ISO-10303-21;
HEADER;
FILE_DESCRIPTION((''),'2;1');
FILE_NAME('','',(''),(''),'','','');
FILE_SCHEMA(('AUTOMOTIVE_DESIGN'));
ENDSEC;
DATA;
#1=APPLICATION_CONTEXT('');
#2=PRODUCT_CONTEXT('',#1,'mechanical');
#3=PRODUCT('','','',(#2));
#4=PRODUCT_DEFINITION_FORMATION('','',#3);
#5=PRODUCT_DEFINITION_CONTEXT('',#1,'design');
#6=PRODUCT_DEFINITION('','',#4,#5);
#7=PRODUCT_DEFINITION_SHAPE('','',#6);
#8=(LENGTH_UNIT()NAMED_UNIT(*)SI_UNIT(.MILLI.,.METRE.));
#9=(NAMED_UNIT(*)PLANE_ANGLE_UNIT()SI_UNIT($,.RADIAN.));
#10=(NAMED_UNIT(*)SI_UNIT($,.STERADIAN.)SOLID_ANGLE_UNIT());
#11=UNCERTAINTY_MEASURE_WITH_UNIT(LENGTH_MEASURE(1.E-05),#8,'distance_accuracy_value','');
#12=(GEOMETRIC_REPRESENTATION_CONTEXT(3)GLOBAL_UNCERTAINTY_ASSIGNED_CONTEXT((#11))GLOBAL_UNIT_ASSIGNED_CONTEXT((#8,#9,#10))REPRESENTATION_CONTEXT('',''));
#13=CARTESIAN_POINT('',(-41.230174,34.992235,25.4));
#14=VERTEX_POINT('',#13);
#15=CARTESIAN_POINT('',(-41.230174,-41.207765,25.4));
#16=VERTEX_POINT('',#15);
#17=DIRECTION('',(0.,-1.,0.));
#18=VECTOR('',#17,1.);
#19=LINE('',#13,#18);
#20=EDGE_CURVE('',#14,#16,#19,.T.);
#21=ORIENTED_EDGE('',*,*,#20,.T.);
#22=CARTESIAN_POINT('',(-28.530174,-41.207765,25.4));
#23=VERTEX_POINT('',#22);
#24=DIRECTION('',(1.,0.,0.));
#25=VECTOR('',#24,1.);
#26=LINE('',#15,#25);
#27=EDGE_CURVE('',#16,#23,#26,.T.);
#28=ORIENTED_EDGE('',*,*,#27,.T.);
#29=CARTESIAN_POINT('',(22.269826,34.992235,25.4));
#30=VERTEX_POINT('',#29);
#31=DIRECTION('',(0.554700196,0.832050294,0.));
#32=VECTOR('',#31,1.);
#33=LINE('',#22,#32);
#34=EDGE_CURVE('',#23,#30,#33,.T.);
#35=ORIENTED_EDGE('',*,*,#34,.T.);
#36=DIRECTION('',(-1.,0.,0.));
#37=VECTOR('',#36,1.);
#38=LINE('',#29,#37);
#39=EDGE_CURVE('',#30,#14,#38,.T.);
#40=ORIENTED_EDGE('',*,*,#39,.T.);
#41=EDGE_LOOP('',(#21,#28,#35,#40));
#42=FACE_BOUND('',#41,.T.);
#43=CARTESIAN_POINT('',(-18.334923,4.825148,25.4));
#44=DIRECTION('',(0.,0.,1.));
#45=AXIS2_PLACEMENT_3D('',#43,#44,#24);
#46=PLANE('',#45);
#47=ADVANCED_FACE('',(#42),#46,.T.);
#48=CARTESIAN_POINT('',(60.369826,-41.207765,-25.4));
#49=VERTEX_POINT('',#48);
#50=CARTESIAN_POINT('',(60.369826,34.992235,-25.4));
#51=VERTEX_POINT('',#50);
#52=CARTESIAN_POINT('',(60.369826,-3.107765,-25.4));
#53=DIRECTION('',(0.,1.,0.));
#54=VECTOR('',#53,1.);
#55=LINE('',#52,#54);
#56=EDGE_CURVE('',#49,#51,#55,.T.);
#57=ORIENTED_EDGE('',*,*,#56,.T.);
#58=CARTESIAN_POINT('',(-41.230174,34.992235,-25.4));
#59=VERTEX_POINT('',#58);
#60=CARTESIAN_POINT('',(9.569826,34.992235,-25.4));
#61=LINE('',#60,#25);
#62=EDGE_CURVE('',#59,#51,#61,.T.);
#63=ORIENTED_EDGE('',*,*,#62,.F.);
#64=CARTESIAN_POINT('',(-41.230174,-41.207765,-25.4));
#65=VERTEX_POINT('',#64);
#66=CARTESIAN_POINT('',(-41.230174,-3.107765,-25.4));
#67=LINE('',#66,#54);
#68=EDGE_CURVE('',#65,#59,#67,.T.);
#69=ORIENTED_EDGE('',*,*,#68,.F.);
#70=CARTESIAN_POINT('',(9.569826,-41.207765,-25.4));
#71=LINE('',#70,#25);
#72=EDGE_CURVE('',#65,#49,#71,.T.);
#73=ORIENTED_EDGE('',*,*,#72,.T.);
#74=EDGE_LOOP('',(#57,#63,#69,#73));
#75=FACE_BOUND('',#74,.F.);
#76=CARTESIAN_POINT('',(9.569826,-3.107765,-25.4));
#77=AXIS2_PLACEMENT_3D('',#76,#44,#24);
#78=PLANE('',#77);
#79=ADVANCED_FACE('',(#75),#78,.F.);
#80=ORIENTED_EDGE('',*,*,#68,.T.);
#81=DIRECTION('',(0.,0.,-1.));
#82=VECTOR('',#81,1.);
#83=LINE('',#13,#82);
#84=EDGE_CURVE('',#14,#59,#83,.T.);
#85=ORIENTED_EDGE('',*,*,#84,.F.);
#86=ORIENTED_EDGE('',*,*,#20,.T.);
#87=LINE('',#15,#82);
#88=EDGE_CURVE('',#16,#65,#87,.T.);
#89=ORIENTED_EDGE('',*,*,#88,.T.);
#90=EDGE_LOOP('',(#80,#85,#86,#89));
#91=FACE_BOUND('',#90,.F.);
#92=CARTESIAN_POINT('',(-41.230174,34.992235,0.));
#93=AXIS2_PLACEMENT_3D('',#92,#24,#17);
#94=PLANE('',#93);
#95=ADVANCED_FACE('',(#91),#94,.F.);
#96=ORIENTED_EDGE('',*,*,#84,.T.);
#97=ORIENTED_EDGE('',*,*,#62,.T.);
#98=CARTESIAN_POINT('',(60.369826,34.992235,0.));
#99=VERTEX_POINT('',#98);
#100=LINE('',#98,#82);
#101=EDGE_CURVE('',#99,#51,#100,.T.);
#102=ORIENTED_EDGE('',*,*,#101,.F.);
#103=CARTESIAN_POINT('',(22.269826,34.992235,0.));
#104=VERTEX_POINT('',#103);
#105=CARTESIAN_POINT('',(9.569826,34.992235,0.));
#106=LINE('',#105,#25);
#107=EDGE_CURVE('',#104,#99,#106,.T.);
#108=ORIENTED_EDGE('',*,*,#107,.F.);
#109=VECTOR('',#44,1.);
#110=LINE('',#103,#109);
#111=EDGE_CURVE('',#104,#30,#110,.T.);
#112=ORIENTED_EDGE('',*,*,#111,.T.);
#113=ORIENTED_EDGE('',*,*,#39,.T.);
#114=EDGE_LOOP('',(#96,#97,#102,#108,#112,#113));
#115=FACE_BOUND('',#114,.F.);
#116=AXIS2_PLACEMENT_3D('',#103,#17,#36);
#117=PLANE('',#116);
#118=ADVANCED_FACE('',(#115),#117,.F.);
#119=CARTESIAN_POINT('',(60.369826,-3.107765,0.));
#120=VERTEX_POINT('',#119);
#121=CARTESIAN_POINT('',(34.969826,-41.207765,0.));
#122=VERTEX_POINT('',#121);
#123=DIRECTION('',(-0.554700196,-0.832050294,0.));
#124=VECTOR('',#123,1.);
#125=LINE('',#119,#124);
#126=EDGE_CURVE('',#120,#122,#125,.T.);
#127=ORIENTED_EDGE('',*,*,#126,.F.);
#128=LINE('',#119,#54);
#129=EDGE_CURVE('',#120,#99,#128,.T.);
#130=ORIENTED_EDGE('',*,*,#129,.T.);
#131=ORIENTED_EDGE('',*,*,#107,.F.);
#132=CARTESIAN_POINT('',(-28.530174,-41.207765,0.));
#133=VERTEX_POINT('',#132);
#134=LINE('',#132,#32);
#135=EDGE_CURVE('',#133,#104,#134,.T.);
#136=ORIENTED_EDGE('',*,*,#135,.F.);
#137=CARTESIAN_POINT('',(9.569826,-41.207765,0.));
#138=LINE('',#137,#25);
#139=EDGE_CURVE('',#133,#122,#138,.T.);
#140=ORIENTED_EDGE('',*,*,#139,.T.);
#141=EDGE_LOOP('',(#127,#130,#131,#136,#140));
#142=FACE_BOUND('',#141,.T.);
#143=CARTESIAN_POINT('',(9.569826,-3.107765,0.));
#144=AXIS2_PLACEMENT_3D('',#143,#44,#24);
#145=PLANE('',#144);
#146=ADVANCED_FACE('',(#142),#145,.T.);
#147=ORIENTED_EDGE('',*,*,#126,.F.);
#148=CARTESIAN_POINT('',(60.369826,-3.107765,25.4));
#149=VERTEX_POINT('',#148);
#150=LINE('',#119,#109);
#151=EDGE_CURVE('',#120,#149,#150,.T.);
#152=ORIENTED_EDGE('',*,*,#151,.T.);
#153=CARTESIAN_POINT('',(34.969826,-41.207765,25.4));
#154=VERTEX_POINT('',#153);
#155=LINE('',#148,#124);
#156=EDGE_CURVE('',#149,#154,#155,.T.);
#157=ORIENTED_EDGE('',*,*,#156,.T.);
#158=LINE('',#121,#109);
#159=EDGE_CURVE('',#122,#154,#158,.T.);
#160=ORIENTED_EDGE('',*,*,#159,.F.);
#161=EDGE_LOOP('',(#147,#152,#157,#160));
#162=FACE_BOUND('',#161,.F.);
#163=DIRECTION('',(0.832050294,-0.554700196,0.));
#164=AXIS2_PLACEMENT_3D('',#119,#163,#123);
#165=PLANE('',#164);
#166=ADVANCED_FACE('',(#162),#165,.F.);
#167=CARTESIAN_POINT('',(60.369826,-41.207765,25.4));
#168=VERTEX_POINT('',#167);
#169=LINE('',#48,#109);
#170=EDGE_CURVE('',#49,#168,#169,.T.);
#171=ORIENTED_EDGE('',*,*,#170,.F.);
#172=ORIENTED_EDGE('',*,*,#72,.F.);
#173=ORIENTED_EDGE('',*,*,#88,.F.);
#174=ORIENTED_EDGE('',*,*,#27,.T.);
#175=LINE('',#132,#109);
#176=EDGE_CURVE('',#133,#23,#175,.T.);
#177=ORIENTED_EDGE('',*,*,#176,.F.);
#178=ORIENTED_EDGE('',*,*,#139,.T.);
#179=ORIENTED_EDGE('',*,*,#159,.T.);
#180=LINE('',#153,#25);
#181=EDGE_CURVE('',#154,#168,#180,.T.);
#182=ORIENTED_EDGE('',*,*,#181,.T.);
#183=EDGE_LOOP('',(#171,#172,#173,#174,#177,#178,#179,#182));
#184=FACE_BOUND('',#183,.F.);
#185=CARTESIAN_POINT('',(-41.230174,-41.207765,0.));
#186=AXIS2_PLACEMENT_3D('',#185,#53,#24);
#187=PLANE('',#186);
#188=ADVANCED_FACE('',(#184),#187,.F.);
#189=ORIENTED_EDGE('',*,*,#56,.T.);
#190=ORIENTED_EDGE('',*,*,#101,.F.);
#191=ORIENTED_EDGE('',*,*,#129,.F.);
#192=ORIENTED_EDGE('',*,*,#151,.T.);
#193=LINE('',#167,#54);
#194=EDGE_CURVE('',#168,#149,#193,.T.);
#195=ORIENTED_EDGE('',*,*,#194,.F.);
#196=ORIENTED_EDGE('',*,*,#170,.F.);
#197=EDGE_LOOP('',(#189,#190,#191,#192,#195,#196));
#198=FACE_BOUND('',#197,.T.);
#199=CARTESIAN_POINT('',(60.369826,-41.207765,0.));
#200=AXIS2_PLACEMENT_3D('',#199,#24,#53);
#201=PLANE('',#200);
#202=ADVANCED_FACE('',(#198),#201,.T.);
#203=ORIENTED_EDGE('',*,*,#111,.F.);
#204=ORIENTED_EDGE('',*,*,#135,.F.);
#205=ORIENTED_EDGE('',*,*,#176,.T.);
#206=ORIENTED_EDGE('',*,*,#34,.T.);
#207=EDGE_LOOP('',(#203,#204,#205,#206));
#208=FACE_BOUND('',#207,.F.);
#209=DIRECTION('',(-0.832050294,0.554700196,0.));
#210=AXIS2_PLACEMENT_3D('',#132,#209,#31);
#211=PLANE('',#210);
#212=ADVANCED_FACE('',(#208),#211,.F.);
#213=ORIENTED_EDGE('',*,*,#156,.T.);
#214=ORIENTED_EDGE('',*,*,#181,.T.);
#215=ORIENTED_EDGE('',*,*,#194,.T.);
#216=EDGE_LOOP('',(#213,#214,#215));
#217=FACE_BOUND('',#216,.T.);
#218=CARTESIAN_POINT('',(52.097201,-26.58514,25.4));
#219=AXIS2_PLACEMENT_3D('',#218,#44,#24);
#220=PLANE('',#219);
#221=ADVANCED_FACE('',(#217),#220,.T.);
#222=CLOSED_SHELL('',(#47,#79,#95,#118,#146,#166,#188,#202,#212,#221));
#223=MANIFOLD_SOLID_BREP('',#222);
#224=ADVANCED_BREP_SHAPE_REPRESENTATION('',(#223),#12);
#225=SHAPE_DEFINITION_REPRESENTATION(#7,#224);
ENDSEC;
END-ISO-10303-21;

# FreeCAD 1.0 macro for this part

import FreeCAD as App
import Part
import Sketcher

V = App.Vector
Q = App.Units.Quantity


def add_polygon(sketch, points):
    """Adds a closed chain of lines whose ends are joined by coincident constraints."""
    first, n = sketch.GeometryCount, len(points)
    for a, b in zip(points, points[1:] + points[:1]):
        sketch.addGeometry(Part.LineSegment(App.Vector(*a, 0), App.Vector(*b, 0)), False)
    for i in range(n):
        sketch.addConstraint(Sketcher.Constraint("Coincident", first + i, 2, first + (i + 1) % n, 1))

doc = App.newDocument("Part")
body = doc.addObject("PartDesign::Body", "Body")

# Sketch on XY plane
sketch1 = body.newObject("Sketcher::SketchObject", "Sketch")
sketch1.AttachmentSupport = (doc.getObject("XY_Plane"), [""])
sketch1.MapMode = "FlatFace"
add_polygon(sketch1, [(-41, 35), (-41, -41), (60, -41), (60, 35)])  # lines 0-3
sketch1.addConstraint(Sketcher.Constraint("Vertical", 0))
sketch1.addConstraint(Sketcher.Constraint("Horizontal", 1))
sketch1.addConstraint(Sketcher.Constraint("Vertical", 2))
sketch1.addConstraint(Sketcher.Constraint("Horizontal", 3))
sketch1.addConstraint(Sketcher.Constraint("DistanceX", 1, 1, 1, 2, Q("4 in")))
sketch1.addConstraint(Sketcher.Constraint("DistanceY", 0, 2, 0, 1, Q("3 in")))
sketch1.addConstraint(Sketcher.Constraint("DistanceX", 0, 2, -1, 1, Q("41.230174 mm")))
sketch1.addConstraint(Sketcher.Constraint("DistanceY", 0, 2, -1, 1, Q("41.207765 mm")))
pad1 = body.newObject("PartDesign::Pad", "Pad")
pad1.Profile = sketch1
pad1.Length = Q("1 in")
pad1.Reversed = True

# Sketch on XY plane
sketch2 = body.newObject("Sketcher::SketchObject", "Sketch001")
sketch2.AttachmentSupport = (doc.getObject("XY_Plane"), [""])
sketch2.MapMode = "FlatFace"
add_polygon(sketch2, [(-41, -41), (-29, -41), (22, 35), (-41, 35)])  # lines 0-3
add_polygon(sketch2, [(35, -41), (60, -41), (60, -3)])  # lines 4-6
sketch2.addConstraint(Sketcher.Constraint("Horizontal", 0))
sketch2.addConstraint(Sketcher.Constraint("Horizontal", 2))
sketch2.addConstraint(Sketcher.Constraint("Vertical", 3))
sketch2.addConstraint(Sketcher.Constraint("Horizontal", 4))
sketch2.addConstraint(Sketcher.Constraint("Vertical", 5))
sketch2.addConstraint(Sketcher.Constraint("Parallel", 1, 6))
sketch2.addConstraint(Sketcher.Constraint("Horizontal", 3, 2, 4, 2))
sketch2.addConstraint(Sketcher.Constraint("DistanceX", 4, 1, 4, 2, Q("1 in")))
sketch2.addConstraint(Sketcher.Constraint("DistanceY", 3, 2, 3, 1, Q("3 in")))
sketch2.addConstraint(Sketcher.Constraint("DistanceX", 0, 1, 0, 2, Q("0.5 in")))
sketch2.addConstraint(Sketcher.Constraint("DistanceX", 2, 2, 2, 1, Q("2.5 in")))
sketch2.addConstraint(Sketcher.Constraint("DistanceX", 3, 2, 4, 2, Q("4 in")))
sketch2.addConstraint(Sketcher.Constraint("DistanceX", 0, 2, -1, 1, Q("28.530174 mm")))
sketch2.addConstraint(Sketcher.Constraint("DistanceY", 0, 2, -1, 1, Q("41.207765 mm")))
pad2 = body.newObject("PartDesign::Pad", "Pad001")
pad2.Profile = sketch2
pad2.Length = Q("1 in")

doc.recompute()
